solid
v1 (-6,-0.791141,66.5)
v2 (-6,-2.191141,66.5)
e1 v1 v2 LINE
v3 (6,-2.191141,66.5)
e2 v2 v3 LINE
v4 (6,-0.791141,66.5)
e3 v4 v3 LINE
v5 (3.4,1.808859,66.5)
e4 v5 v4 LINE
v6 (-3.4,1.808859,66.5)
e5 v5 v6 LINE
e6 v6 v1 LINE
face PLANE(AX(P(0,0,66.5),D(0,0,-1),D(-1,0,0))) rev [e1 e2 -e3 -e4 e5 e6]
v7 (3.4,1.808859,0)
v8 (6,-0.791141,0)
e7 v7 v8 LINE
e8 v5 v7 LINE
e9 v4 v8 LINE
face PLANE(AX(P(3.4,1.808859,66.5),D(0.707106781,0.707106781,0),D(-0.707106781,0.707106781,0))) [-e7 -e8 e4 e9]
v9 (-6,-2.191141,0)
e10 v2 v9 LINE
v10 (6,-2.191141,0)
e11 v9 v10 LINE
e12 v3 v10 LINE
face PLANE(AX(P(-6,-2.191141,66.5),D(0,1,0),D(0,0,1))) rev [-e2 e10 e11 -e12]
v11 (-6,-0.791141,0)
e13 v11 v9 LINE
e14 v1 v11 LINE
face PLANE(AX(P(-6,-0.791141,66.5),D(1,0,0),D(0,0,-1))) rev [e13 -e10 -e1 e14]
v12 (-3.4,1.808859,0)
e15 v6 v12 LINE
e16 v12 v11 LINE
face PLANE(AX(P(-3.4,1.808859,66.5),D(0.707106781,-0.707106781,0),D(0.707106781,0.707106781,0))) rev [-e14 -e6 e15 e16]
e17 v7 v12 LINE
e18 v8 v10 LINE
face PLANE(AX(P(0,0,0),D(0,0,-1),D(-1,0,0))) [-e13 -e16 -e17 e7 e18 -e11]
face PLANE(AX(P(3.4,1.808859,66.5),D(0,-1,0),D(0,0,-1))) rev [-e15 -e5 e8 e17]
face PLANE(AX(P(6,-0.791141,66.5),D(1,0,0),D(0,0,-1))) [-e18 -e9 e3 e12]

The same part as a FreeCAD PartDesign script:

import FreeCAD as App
import Part
import Sketcher
from FreeCAD import Vector


def add_polygon(sketch, points):
    """Adds a closed chain of lines whose ends are joined by coincident constraints."""
    first, n = sketch.GeometryCount, len(points)
    for a, b in zip(points, points[1:] + points[:1]):
        sketch.addGeometry(Part.LineSegment(App.Vector(*a, 0), App.Vector(*b, 0)), False)
    for i in range(n):
        sketch.addConstraint(Sketcher.Constraint("Coincident", first + i, 2, first + (i + 1) % n, 1))

doc = App.newDocument("Part")
params = doc.addObject("Spreadsheet::Sheet", "Params")
for row, (alias, value) in enumerate([
    ("sketch1_width", "12 mm"),
    ("sketch1_width2", "6.8 mm"),
    ("sketch1_height", "1.4 mm"),
    ("pad1_length", "66.5 mm"),
], start=1):
    params.set(f"A{row}", alias)
    params.set(f"B{row}", "=" + value)
    params.setAlias(f"B{row}", alias)

body = doc.addObject("PartDesign::Body", "Body")

sketch1 = body.newObject("Sketcher::SketchObject", "Sketch")
sketch1.AttachmentSupport = (doc.getObject("XY_Plane"), [""])
sketch1.MapMode = "FlatFace"
add_polygon(sketch1, [(3.4, 1.808859), (-3.4, 1.808859), (-6, -0.791141), (-6, -2.191141), (6, -2.191141), (6, -0.791141)])
sketch1.addConstraint([
    Sketcher.Constraint("Horizontal", 0),
    Sketcher.Constraint("Vertical", 2),
    Sketcher.Constraint("Horizontal", 3),
    Sketcher.Constraint("Vertical", 4),
    Sketcher.Constraint("Symmetric", 1, 2, 4, 2, -2),
    Sketcher.Constraint("Perpendicular", 1, 5),
    Sketcher.Constraint("Equal", 1, 5),
    Sketcher.Constraint("DistanceX", 3, 1, 3, 2, 12.0),
    Sketcher.Constraint("DistanceX", 0, 2, 0, 1, 6.8),
    Sketcher.Constraint("DistanceY", 2, 2, 2, 1, 1.4),
    Sketcher.Constraint("DistanceY", -1, 1, 0, 2, 1.808859),
])
sketch1.setExpression("Constraints[13]", "Params.sketch1_width")
sketch1.setExpression("Constraints[14]", "Params.sketch1_width2")
sketch1.setExpression("Constraints[15]", "Params.sketch1_height")
pad1 = body.newObject("PartDesign::Pad", "Pad")
pad1.Profile = sketch1
pad1.setExpression("Length", "Params.pad1_length")

doc.recompute()
